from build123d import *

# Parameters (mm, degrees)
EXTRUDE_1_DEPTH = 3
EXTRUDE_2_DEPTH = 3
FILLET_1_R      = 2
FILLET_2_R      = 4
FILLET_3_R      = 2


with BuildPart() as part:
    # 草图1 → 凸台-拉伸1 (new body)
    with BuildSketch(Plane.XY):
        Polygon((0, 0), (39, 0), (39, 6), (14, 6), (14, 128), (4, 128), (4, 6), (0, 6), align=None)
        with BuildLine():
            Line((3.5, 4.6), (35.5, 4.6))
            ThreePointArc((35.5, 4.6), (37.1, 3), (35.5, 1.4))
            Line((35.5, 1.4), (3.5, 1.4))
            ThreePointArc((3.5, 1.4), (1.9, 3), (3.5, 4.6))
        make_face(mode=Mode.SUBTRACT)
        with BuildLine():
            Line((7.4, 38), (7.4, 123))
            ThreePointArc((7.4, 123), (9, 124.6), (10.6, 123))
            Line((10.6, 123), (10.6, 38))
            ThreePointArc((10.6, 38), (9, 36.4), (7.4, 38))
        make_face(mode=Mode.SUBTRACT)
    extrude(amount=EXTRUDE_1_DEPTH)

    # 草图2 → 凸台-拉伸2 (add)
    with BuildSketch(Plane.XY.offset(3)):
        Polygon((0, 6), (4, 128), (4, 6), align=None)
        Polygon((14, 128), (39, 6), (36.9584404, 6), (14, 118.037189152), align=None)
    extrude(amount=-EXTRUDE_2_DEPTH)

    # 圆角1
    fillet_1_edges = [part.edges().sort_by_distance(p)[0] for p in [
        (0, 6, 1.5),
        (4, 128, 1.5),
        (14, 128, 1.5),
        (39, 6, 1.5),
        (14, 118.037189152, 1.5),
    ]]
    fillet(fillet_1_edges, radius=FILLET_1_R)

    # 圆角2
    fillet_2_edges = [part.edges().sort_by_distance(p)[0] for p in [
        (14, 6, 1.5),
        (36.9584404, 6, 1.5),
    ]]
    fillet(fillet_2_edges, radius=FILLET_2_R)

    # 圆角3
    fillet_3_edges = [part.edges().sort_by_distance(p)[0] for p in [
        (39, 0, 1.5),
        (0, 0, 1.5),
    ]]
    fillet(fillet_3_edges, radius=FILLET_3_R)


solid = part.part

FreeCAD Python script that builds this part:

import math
import FreeCAD as App
import Part
import Sketcher

V = App.Vector
Q = App.Units.Quantity


def edges_at(feature, points):
    """Names of the edges that pass closest to the given points."""
    edges = feature.Shape.Edges
    near = lambda p: min(range(len(edges)), key=lambda i: edges[i].distToShape(Part.Vertex(*p))[0])
    return sorted({f"Edge{near(p) + 1}" for p in points})


def add_polygon(sketch, points):
    """Adds a closed chain of lines whose ends are joined by coincident constraints."""
    first, n = sketch.GeometryCount, len(points)
    for a, b in zip(points, points[1:] + points[:1]):
        sketch.addGeometry(Part.LineSegment(App.Vector(*a, 0), App.Vector(*b, 0)), False)
    for i in range(n):
        sketch.addConstraint(Sketcher.Constraint("Coincident", first + i, 2, first + (i + 1) % n, 1))

doc = App.newDocument("Part")
params = doc.addObject("Spreadsheet::Sheet", "Params")
for row, (alias, value) in enumerate([
    ("sketch1_radius", "1.6 mm"),
    ("sketch1_width", "39 mm"),
    ("sketch1_width2", "25 mm"),
    ("sketch1_width3", "10 mm"),
    ("sketch1_width4", "32 mm"),
    ("pad1_length", "3 mm"),
    ("sketch2_width", "4 mm"),
    ("sketch2_height", "122 mm"),
    ("pad2_length", "3 mm"),
    ("fillet_radius", "2 mm"),
    ("fillet2_radius", "4 mm"),
    ("fillet3_radius", "2 mm"),
], start=1):
    params.set(f"A{row}", alias)
    params.set(f"B{row}", "=" + value)
    params.setAlias(f"B{row}", alias)

body = doc.addObject("PartDesign::Body", "Body")

# Sketch on XY plane
sketch1 = body.newObject("Sketcher::SketchObject", "Sketch")
sketch1.AttachmentSupport = (doc.getObject("XY_Plane"), [""])
sketch1.MapMode = "FlatFace"
add_polygon(sketch1, [(0, 0), (39, 0), (39, 6), (14, 6), (14, 128), (4, 128), (4, 6), (0, 6)])  # lines 0-7
sketch1.addGeometry(Part.ArcOfCircle(Part.Circle(V(3.5, 3, 0), V(0, 0, 1), 1.6), math.radians(90), math.radians(270)), False)  # 8
sketch1.addGeometry(Part.LineSegment(V(3.5, 4.6, 0), V(35.5, 4.6, 0)), False)  # 9
sketch1.addGeometry(Part.ArcOfCircle(Part.Circle(V(35.5, 3, 0), V(0, 0, 1), 1.6), math.radians(-90), math.radians(90)), False)  # 10
sketch1.addGeometry(Part.LineSegment(V(35.5, 1.4, 0), V(3.5, 1.4, 0)), False)  # 11
sketch1.addGeometry(Part.ArcOfCircle(Part.Circle(V(9, 38, 0), V(0, 0, 1), 1.6), math.radians(180), math.radians(360)), False)  # 12
sketch1.addGeometry(Part.LineSegment(V(7.4, 38, 0), V(7.4, 123, 0)), False)  # 13
sketch1.addGeometry(Part.ArcOfCircle(Part.Circle(V(9, 123, 0), V(0, 0, 1), 1.6), math.radians(0), math.radians(180)), False)  # 14
sketch1.addGeometry(Part.LineSegment(V(10.6, 123, 0), V(10.6, 38, 0)), False)  # 15
sketch1.addConstraint([
    Sketcher.Constraint("Tangent", 8, 1, 9, 1),
    Sketcher.Constraint("Tangent", 9, 2, 10, 2),
    Sketcher.Constraint("Tangent", 10, 1, 11, 1),
    Sketcher.Constraint("Tangent", 11, 2, 8, 2),
    Sketcher.Constraint("Tangent", 12, 1, 13, 1),
    Sketcher.Constraint("Tangent", 13, 2, 14, 2),
    Sketcher.Constraint("Tangent", 14, 1, 15, 1),
    Sketcher.Constraint("Tangent", 15, 2, 12, 2),
    Sketcher.Constraint("Horizontal", 0),
    Sketcher.Constraint("Vertical", 1),
    Sketcher.Constraint("Horizontal", 2),
    Sketcher.Constraint("Vertical", 3),
    Sketcher.Constraint("Horizontal", 4),
    Sketcher.Constraint("Vertical", 5),
    Sketcher.Constraint("Horizontal", 6),
    Sketcher.Constraint("Vertical", 7),
    Sketcher.Constraint("Horizontal", 9),
    Sketcher.Constraint("Horizontal", 11),
    Sketcher.Constraint("Vertical", 13),
    Sketcher.Constraint("Vertical", 15),
    Sketcher.Constraint("Coincident", 7, 2, -1, 1),
    Sketcher.Constraint("Equal", 10, 12),
    Sketcher.Constraint("Horizontal", 2, 2, 5, 2),
    Sketcher.Constraint("Radius", 8, Q("1.6 mm")),
    Sketcher.Constraint("DistanceX", 0, 1, 0, 2, Q("39 mm")),
    Sketcher.Constraint("DistanceX", 2, 2, 2, 1, Q("25 mm")),
    Sketcher.Constraint("DistanceX", 4, 2, 4, 1, Q("10 mm")),
    Sketcher.Constraint("DistanceX", 9, 1, 9, 2, Q("32 mm")),
    Sketcher.Constraint("DistanceY", 1, 1, 1, 2, Q("6 mm")),
    Sketcher.Constraint("DistanceY", 3, 1, 3, 2, Q("122 mm")),
    Sketcher.Constraint("DistanceY", 13, 1, 13, 2, Q("85 mm")),
    Sketcher.Constraint("DistanceY", -1, 1, 8, 3, Q("3 mm")),
    Sketcher.Constraint("DistanceX", -1, 1, 12, 3, Q("9 mm")),
    Sketcher.Constraint("DistanceY", -1, 1, 12, 3, Q("38 mm")),
    Sketcher.Constraint("DistanceX", -1, 1, 8, 3, Q("3.5 mm")),
])
sketch1.setExpression("Constraints[31]", "Params.sketch1_radius")
sketch1.setExpression("Constraints[32]", "Params.sketch1_width")
sketch1.setExpression("Constraints[33]", "Params.sketch1_width2")
sketch1.setExpression("Constraints[34]", "Params.sketch1_width3")
sketch1.setExpression("Constraints[35]", "Params.sketch1_width4")
pad1 = body.newObject("PartDesign::Pad", "Pad")
pad1.Profile = sketch1
pad1.setExpression("Length", "Params.pad1_length")

# Sketch on XY plane
sketch2 = body.newObject("Sketcher::SketchObject", "Sketch001")
sketch2.AttachmentSupport = (doc.getObject("XY_Plane"), [""])
sketch2.MapMode = "FlatFace"
sketch2.AttachmentOffset = App.Placement(V(0, 0, 3), App.Rotation())
add_polygon(sketch2, [(4, 128), (0, 6), (4, 6)])  # lines 0-2
add_polygon(sketch2, [(39, 6), (14, 128), (14, 118.037189), (36.95844, 6)])  # lines 3-6
sketch2.addConstraint([
    Sketcher.Constraint("Horizontal", 1),
    Sketcher.Constraint("Vertical", 2),
    Sketcher.Constraint("Vertical", 4),
    Sketcher.Constraint("Horizontal", 6),
    Sketcher.Constraint("PointOnObject", 0, 2, -2),
    Sketcher.Constraint("Parallel", 3, 5),
    Sketcher.Constraint("Horizontal", 2, 2, 3, 2),
    Sketcher.Constraint("Horizontal", 1, 2, 5, 2),
    Sketcher.Constraint("DistanceX", 1, 1, 1, 2, Q("4 mm")),
    Sketcher.Constraint("DistanceY", 2, 1, 2, 2, Q("122 mm")),
    Sketcher.Constraint("DistanceY", -1, 1, 0, 2, Q("6 mm")),
    Sketcher.Constraint("DistanceX", -1, 1, 3, 2, Q("14 mm")),
    Sketcher.Constraint("DistanceX", -1, 1, 6, 2, Q("39 mm")),
    Sketcher.Constraint("Distance", 5, Q("114.3653 mm")),
])
sketch2.setExpression("Constraints[15]", "Params.sketch2_width")
sketch2.setExpression("Constraints[16]", "Params.sketch2_height")
pad2 = body.newObject("PartDesign::Pad", "Pad001")
pad2.Profile = sketch2
pad2.setExpression("Length", "Params.pad2_length")
pad2.Reversed = True
doc.recompute()

fillet = body.newObject("PartDesign::Fillet", "Fillet")
fillet.Base = (pad2, edges_at(pad2, [
    (0, 6, 1.5),
    (4, 128, 1.5),
    (14, 128, 1.5),
    (39, 6, 1.5),
    (14, 118.037, 1.5),
]))
fillet.setExpression("Radius", "Params.fillet_radius")
doc.recompute()

fillet2 = body.newObject("PartDesign::Fillet", "Fillet001")
fillet2.Base = (fillet, edges_at(fillet, [(14, 6, 1.5), (36.958, 6, 1.5)]))
fillet2.setExpression("Radius", "Params.fillet2_radius")
doc.recompute()

fillet3 = body.newObject("PartDesign::Fillet", "Fillet002")
fillet3.Base = (fillet2, edges_at(fillet2, [(39, 0, 1.5), (0, 0, 1.5)]))
fillet3.setExpression("Radius", "Params.fillet3_radius")

doc.recompute()
